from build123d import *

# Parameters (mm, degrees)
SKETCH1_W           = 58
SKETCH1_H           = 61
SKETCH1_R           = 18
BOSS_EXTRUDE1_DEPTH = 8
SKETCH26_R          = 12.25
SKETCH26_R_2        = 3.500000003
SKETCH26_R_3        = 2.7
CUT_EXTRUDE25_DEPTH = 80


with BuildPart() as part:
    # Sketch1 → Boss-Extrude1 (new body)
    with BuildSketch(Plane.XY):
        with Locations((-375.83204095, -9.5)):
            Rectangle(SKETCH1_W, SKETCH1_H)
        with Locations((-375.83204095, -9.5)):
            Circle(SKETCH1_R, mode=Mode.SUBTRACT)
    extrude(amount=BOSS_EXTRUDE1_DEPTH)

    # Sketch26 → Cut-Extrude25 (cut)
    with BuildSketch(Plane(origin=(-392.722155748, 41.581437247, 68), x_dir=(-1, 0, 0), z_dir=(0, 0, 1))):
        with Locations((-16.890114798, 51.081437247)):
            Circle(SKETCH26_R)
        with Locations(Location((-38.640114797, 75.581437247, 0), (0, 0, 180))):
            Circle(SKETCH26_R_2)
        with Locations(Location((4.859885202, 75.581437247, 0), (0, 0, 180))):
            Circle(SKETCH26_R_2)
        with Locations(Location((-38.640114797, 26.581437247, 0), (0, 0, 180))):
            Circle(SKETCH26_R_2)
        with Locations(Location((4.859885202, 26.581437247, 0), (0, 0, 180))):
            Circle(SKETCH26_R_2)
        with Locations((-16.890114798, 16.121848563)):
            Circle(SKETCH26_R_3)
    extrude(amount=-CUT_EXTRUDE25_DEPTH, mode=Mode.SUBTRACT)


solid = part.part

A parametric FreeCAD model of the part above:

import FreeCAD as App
import Part
import Sketcher
from FreeCAD import Vector
Q = App.Units.Quantity

doc = App.newDocument("Part")
body = doc.addObject("PartDesign::Body", "Body")

# Sketch on XY plane
sketch1 = body.newObject("Sketcher::SketchObject", "Sketch")
sketch1.AttachmentSupport = (doc.getObject("XY_Plane"), [""])
sketch1.MapMode = "FlatFace"
sketch1.addGeometry([
    Part.LineSegment(Vector(-404.832041, 21, 0), Vector(-404.832041, -40, 0)),  # 0
    Part.LineSegment(Vector(-404.832041, -40, 0), Vector(-346.832041, -40, 0)),  # 1
    Part.LineSegment(Vector(-346.832041, -40, 0), Vector(-346.832041, 21, 0)),  # 2
    Part.LineSegment(Vector(-346.832041, 21, 0), Vector(-404.832041, 21, 0)),  # 3
    Part.Circle(Vector(-375.832041, -9.5, 0), Vector(0, 0, 1), 18),  # 4
], False)
sketch1.addConstraint([
    Sketcher.Constraint("Coincident", 0, 2, 1, 1),
    Sketcher.Constraint("Coincident", 1, 2, 2, 1),
    Sketcher.Constraint("Coincident", 2, 2, 3, 1),
    Sketcher.Constraint("Coincident", 3, 2, 0, 1),
    Sketcher.Constraint("Vertical", 0),
    Sketcher.Constraint("Horizontal", 1),
    Sketcher.Constraint("Vertical", 2),
    Sketcher.Constraint("Horizontal", 3),
    Sketcher.Constraint("Diameter", 4, Q("36 mm")),
    Sketcher.Constraint("DistanceX", 1, 1, 1, 2, Q("58 mm")),
    Sketcher.Constraint("DistanceY", 0, 2, 0, 1, Q("61 mm")),
    Sketcher.Constraint("DistanceY", 0, 2, -1, 1, Q("40 mm")),
    Sketcher.Constraint("DistanceX", 0, 2, 4, 3, Q("29 mm")),
    Sketcher.Constraint("DistanceY", 4, 3, -1, 1, Q("9.5 mm")),
    Sketcher.Constraint("DistanceX", 4, 3, -1, 1, Q("375.832041 mm")),
])
pad1 = body.newObject("PartDesign::Pad", "Pad")
pad1.Profile = sketch1
pad1.Length = 8

# Sketch on XY plane
sketch2 = body.newObject("Sketcher::SketchObject", "Sketch001")
sketch2.AttachmentSupport = (doc.getObject("XY_Plane"), [""])
sketch2.MapMode = "FlatFace"
sketch2.AttachmentOffset = App.Placement(Vector(0, 0, 68), App.Rotation())
sketch2.addGeometry([
    Part.Circle(Vector(-375.832041, -9.5, 0), Vector(0, 0, 1), 12.25),  # 0
    Part.Circle(Vector(-354.082041, -34, 0), Vector(0, 0, 1), 3.5),  # 1
    Part.Circle(Vector(-397.582041, -34, 0), Vector(0, 0, 1), 3.5),  # 2
    Part.Circle(Vector(-354.082041, 15, 0), Vector(0, 0, 1), 3.5),  # 3
    Part.Circle(Vector(-397.582041, 15, 0), Vector(0, 0, 1), 3.5),  # 4
    Part.Circle(Vector(-375.832041, 25.459589, 0), Vector(0, 0, 1), 2.7),  # 5
], False)
sketch2.addConstraint([
    Sketcher.Constraint("Equal", 1, 2),
    Sketcher.Constraint("Equal", 2, 3),
    Sketcher.Constraint("Equal", 3, 4),
    Sketcher.Constraint("Horizontal", 1, 3, 2, 3),
    Sketcher.Constraint("Horizontal", 3, 3, 4, 3),
    Sketcher.Constraint("Vertical", 1, 3, 3, 3),
    Sketcher.Constraint("Vertical", 2, 3, 4, 3),
    Sketcher.Constraint("Vertical", 0, 3, 5, 3),
    Sketcher.Constraint("Diameter", 1, Q("7 mm")),
    Sketcher.Constraint("Diameter", 0, Q("24.5 mm")),
    Sketcher.Constraint("Diameter", 5, Q("5.4 mm")),
    Sketcher.Constraint("DistanceY", 1, 3, -1, 1, Q("34 mm")),
    Sketcher.Constraint("DistanceY", -1, 1, 3, 3, Q("15 mm")),
    Sketcher.Constraint("DistanceY", 0, 3, -1, 1, Q("9.5 mm")),
    Sketcher.Constraint("DistanceX", 2, 3, 1, 3, Q("43.5 mm")),
    Sketcher.Constraint("DistanceX", 0, 3, 1, 3, Q("21.75 mm")),
    Sketcher.Constraint("DistanceX", 0, 3, -1, 1, Q("375.832041 mm")),
    Sketcher.Constraint("DistanceY", -1, 1, 5, 3, Q("25.459589 mm")),
])
pocket1 = body.newObject("PartDesign::Pocket", "Pocket")
pocket1.Profile = sketch2
pocket1.Length = 80

doc.recompute()
